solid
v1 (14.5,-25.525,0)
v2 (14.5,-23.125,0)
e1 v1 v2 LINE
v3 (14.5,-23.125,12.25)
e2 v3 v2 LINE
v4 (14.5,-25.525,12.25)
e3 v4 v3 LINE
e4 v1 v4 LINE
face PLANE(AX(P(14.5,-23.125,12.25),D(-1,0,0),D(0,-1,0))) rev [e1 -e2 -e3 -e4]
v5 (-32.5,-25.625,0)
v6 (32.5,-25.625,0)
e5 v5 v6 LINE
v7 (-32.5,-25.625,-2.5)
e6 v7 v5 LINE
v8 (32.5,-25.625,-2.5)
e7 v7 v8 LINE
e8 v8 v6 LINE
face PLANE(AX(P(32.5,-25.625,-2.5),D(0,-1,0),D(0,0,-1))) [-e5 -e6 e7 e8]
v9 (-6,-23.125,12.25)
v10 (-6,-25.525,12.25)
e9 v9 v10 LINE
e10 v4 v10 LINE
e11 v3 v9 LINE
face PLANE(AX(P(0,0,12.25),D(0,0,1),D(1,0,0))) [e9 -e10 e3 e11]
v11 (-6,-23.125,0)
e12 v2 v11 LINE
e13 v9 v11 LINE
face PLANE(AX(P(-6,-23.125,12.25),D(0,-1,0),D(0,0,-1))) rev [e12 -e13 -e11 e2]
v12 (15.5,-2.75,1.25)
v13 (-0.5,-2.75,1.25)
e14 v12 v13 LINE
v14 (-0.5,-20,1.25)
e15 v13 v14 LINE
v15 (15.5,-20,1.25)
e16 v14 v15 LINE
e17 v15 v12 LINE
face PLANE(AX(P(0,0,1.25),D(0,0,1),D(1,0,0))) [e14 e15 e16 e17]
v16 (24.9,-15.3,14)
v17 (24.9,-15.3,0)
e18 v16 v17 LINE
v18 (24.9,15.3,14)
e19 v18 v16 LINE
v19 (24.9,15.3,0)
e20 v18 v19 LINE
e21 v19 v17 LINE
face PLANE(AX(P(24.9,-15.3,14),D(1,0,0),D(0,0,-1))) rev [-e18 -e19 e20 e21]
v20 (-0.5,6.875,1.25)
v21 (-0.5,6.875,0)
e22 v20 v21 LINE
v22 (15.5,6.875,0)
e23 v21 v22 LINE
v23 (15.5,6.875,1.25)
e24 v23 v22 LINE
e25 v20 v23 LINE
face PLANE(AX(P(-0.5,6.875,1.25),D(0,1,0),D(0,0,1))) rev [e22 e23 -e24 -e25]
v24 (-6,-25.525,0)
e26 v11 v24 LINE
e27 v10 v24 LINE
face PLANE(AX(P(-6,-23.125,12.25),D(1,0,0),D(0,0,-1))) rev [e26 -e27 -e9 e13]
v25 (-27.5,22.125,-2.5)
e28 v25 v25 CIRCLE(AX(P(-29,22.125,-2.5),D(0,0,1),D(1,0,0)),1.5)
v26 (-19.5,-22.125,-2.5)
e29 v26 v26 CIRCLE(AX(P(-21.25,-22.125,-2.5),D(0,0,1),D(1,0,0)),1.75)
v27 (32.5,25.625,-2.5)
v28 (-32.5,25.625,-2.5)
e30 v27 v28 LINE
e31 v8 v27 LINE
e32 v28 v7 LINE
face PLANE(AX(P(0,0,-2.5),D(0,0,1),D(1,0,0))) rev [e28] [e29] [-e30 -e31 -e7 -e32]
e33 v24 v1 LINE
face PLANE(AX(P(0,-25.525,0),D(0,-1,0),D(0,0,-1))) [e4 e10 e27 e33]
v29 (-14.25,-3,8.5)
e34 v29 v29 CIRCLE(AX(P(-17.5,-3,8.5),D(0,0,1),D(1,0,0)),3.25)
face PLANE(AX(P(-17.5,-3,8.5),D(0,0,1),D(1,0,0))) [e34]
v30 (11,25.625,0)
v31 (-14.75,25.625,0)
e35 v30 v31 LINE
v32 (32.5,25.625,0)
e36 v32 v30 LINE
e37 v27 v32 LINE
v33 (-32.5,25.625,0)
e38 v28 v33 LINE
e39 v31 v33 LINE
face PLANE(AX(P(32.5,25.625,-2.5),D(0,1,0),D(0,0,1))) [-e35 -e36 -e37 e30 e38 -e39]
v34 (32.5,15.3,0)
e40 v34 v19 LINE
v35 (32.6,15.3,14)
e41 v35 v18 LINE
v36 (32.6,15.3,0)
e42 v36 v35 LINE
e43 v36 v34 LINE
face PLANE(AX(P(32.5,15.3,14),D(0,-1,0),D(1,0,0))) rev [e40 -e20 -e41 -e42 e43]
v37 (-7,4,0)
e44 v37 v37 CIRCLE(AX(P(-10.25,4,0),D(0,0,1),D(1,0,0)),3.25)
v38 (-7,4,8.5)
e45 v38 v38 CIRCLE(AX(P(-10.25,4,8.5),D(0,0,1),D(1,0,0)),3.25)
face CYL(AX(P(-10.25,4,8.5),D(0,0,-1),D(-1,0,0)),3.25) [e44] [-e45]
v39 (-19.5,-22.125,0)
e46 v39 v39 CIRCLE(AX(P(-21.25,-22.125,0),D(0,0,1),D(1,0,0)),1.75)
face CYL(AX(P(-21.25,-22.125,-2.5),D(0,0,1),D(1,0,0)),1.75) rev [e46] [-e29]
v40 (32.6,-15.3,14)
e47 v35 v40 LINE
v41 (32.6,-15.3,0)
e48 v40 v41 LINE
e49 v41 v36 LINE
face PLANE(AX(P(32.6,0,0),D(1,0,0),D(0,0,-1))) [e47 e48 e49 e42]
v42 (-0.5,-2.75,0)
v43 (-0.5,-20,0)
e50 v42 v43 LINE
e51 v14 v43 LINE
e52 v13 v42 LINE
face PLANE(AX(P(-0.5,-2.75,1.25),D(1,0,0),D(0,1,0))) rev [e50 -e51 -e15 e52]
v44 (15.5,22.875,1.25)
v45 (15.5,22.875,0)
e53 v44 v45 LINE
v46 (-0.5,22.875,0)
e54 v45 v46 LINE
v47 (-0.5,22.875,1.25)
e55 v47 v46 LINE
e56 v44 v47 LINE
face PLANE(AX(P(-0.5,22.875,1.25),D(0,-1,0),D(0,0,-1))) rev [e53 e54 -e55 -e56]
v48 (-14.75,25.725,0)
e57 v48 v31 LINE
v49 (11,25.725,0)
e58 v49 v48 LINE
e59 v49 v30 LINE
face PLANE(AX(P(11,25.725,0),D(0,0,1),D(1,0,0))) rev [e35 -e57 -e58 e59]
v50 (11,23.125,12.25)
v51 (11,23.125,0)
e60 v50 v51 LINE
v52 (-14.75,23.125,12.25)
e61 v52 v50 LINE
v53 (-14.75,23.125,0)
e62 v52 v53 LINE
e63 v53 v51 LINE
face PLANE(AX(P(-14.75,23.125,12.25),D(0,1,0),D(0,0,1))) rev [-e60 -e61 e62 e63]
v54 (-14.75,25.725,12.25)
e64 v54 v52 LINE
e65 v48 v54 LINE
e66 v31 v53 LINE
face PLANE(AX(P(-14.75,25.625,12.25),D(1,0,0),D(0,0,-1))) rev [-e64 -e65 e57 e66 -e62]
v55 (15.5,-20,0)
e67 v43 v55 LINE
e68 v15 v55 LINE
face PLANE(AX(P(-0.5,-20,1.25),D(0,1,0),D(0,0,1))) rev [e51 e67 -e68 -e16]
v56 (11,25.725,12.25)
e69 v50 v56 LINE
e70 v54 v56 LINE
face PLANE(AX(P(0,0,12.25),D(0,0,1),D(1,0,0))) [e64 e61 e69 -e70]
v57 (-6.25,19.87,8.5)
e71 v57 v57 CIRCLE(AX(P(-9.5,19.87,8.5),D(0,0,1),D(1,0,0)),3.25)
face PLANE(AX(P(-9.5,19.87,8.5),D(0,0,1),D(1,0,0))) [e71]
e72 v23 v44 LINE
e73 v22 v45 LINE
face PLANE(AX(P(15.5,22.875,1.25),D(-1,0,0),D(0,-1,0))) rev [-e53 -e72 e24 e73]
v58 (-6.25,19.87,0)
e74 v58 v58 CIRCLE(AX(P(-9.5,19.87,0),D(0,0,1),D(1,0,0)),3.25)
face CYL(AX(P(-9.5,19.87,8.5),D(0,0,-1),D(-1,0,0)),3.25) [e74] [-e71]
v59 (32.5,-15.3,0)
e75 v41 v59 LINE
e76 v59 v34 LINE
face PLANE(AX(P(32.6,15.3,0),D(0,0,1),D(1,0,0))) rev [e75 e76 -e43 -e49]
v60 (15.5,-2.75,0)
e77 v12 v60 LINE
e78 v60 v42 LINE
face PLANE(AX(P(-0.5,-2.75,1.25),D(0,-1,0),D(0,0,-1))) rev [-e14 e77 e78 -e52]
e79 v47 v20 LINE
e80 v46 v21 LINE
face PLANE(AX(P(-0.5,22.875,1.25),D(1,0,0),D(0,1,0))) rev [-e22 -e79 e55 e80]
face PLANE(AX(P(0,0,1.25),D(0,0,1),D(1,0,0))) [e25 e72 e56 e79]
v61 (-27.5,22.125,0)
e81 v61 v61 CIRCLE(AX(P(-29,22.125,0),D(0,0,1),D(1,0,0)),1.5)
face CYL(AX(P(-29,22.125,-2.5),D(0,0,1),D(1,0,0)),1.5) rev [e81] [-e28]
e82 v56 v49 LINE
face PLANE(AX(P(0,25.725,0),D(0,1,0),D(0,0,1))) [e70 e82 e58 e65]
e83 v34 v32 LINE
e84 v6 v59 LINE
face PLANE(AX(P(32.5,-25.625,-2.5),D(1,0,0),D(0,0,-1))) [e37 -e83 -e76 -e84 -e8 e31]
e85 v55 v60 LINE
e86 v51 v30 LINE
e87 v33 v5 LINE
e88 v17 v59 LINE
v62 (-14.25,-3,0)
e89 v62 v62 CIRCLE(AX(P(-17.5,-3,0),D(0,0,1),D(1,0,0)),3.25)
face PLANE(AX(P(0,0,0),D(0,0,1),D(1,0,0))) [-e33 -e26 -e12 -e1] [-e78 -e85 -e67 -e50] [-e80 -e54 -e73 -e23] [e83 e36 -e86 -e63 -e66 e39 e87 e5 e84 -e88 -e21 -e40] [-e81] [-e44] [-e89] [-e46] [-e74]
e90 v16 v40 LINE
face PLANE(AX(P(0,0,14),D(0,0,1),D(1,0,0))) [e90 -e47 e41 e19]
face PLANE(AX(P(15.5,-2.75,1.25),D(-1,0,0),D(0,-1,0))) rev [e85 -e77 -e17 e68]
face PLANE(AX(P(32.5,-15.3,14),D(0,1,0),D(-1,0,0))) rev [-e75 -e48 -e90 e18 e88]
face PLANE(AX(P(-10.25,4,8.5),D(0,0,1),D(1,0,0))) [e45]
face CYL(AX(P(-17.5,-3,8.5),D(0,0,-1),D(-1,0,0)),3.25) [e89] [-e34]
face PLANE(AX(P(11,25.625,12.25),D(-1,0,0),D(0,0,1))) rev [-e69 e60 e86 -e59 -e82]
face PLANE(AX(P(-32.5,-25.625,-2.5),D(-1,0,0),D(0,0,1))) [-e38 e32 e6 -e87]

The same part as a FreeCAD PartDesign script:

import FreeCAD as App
import Part
import Sketcher
from FreeCAD import Vector

doc = App.newDocument("Part")
body = doc.addObject("PartDesign::Body", "Body")

sketch1 = body.newObject("Sketcher::SketchObject", "Sketch")
sketch1.AttachmentSupport = (doc.getObject("XY_Plane"), [""])
sketch1.MapMode = "FlatFace"
sketch1.addGeometry(Part.Circle(Vector(-17.5, -3, 0), Vector(0, 0, 1), 3.25), False)
sketch1.addConstraint([
    Sketcher.Constraint("Diameter", 0, 6.5),
    Sketcher.Constraint("DistanceY", 0, 3, -1, 1, 3.0),
    Sketcher.Constraint("DistanceX", 0, 3, -1, 1, 17.5),
])
pad1 = body.newObject("PartDesign::Pad", "Pad")
pad1.Profile = sketch1
pad1.Length = 8.5

sketch2 = body.newObject("Sketcher::SketchObject", "Sketch001")
sketch2.AttachmentSupport = (doc.getObject("XY_Plane"), [""])
sketch2.MapMode = "FlatFace"
sketch2.addGeometry([
    Part.LineSegment(Vector(-32.5, 25.625, 0), Vector(-32.5, -25.625, 0)),
    Part.LineSegment(Vector(-32.5, -25.625, 0), Vector(32.5, -25.625, 0)),
    Part.LineSegment(Vector(32.5, -25.625, 0), Vector(32.5, 25.625, 0)),
    Part.LineSegment(Vector(32.5, 25.625, 0), Vector(-32.5, 25.625, 0)),
], False)
sketch2.addConstraint([
    Sketcher.Constraint("Coincident", 0, 2, 1, 1),
    Sketcher.Constraint("Coincident", 1, 2, 2, 1),
    Sketcher.Constraint("Coincident", 2, 2, 3, 1),
    Sketcher.Constraint("Coincident", 3, 2, 0, 1),
    Sketcher.Constraint("Vertical", 0),
    Sketcher.Constraint("Horizontal", 1),
    Sketcher.Constraint("Vertical", 2),
    Sketcher.Constraint("Horizontal", 3),
    Sketcher.Constraint("Symmetric", 0, 2, 2, 2, -1, 1),
    Sketcher.Constraint("DistanceX", 1, 1, 1, 2, 65.0),
    Sketcher.Constraint("DistanceY", 0, 2, 0, 1, 51.25),
])
pad2 = body.newObject("PartDesign::Pad", "Pad001")
pad2.Profile = sketch2
pad2.Length = 2.5
pad2.Reversed = True

sketch3 = body.newObject("Sketcher::SketchObject", "Sketch002")
sketch3.AttachmentSupport = (doc.getObject("XY_Plane"), [""])
sketch3.MapMode = "FlatFace"
sketch3.addGeometry([
    Part.LineSegment(Vector(24.9, 15.3, 0), Vector(24.9, -15.3, 0)),
    Part.LineSegment(Vector(24.9, -15.3, 0), Vector(32.5, -15.3, 0)),
    Part.LineSegment(Vector(32.5, -15.3, 0), Vector(32.5, 15.3, 0)),
    Part.LineSegment(Vector(32.5, 15.3, 0), Vector(24.9, 15.3, 0)),
], False)
sketch3.addConstraint([
    Sketcher.Constraint("Coincident", 0, 2, 1, 1),
    Sketcher.Constraint("Coincident", 1, 2, 2, 1),
    Sketcher.Constraint("Coincident", 2, 2, 3, 1),
    Sketcher.Constraint("Coincident", 3, 2, 0, 1),
    Sketcher.Constraint("Vertical", 0),
    Sketcher.Constraint("Horizontal", 1),
    Sketcher.Constraint("Vertical", 2),
    Sketcher.Constraint("Horizontal", 3),
    Sketcher.Constraint("DistanceX", 1, 1, 1, 2, 7.6),
    Sketcher.Constraint("DistanceY", 0, 2, 0, 1, 30.6),
    Sketcher.Constraint("DistanceX", -1, 1, 0, 2, 24.9),
    Sketcher.Constraint("DistanceY", 0, 2, -1, 1, 15.3),
])
pad3 = body.newObject("PartDesign::Pad", "Pad002")
pad3.Profile = sketch3
pad3.Length = 14

sketch4 = body.newObject("Sketcher::SketchObject", "Sketch003")
sketch4.AttachmentSupport = (doc.getObject("XY_Plane"), [""])
sketch4.MapMode = "FlatFace"
sketch4.addGeometry(Part.Circle(Vector(-10.25, 4, 0), Vector(0, 0, 1), 3.25), False)
sketch4.addConstraint([
    Sketcher.Constraint("Diameter", 0, 6.5),
    Sketcher.Constraint("DistanceY", -1, 1, 0, 3, 4.0),
    Sketcher.Constraint("DistanceX", 0, 3, -1, 1, 10.25),
])
pad4 = body.newObject("PartDesign::Pad", "Pad003")
pad4.Profile = sketch4
pad4.Length = 8.5

sketch5 = body.newObject("Sketcher::SketchObject", "Sketch004")
sketch5.AttachmentSupport = (doc.getObject("XY_Plane"), [""])
sketch5.MapMode = "FlatFace"
sketch5.addGeometry([
    Part.LineSegment(Vector(-14.75, 25.625, 0), Vector(-14.75, 23.125, 0)),
    Part.LineSegment(Vector(-14.75, 23.125, 0), Vector(11, 23.125, 0)),
    Part.LineSegment(Vector(11, 23.125, 0), Vector(11, 25.625, 0)),
    Part.LineSegment(Vector(11, 25.625, 0), Vector(-14.75, 25.625, 0)),
], False)
sketch5.addConstraint([
    Sketcher.Constraint("Coincident", 0, 2, 1, 1),
    Sketcher.Constraint("Coincident", 1, 2, 2, 1),
    Sketcher.Constraint("Coincident", 2, 2, 3, 1),
    Sketcher.Constraint("Coincident", 3, 2, 0, 1),
    Sketcher.Constraint("Vertical", 0),
    Sketcher.Constraint("Horizontal", 1),
    Sketcher.Constraint("Vertical", 2),
    Sketcher.Constraint("Horizontal", 3),
    Sketcher.Constraint("DistanceY", 0, 2, 0, 1, 2.5),
    Sketcher.Constraint("DistanceX", -1, 1, 1, 2, 11.0),
    Sketcher.Constraint("DistanceX", 1, 1, 1, 2, 25.75),
    Sketcher.Constraint("DistanceY", -1, 1, 0, 2, 23.125),
])
pad5 = body.newObject("PartDesign::Pad", "Pad004")
pad5.Profile = sketch5
pad5.Length = 12.25

sketch6 = body.newObject("Sketcher::SketchObject", "Sketch005")
sketch6.AttachmentSupport = (doc.getObject("XY_Plane"), [""])
sketch6.MapMode = "FlatFace"
sketch6.addGeometry(Part.Circle(Vector(-9.5, 19.87, 0), Vector(0, 0, 1), 3.25), False)
sketch6.addConstraint([
    Sketcher.Constraint("Diameter", 0, 6.5),
    Sketcher.Constraint("DistanceX", 0, 3, -1, 1, 9.5),
    Sketcher.Constraint("DistanceY", -1, 1, 0, 3, 19.87),
])
pad6 = body.newObject("PartDesign::Pad", "Pad005")
pad6.Profile = sketch6
pad6.Length = 8.5

sketch7 = body.newObject("Sketcher::SketchObject", "Sketch006")
sketch7.AttachmentSupport = (doc.getObject("XY_Plane"), [""])
sketch7.MapMode = "FlatFace"
sketch7.addGeometry([
    Part.LineSegment(Vector(-6, -23.125, 0), Vector(-6, -25.625, 0)),
    Part.LineSegment(Vector(-6, -25.625, 0), Vector(14.5, -25.625, 0)),
    Part.LineSegment(Vector(14.5, -25.625, 0), Vector(14.5, -23.125, 0)),
    Part.LineSegment(Vector(14.5, -23.125, 0), Vector(-6, -23.125, 0)),
], False)
sketch7.addConstraint([
    Sketcher.Constraint("Coincident", 0, 2, 1, 1),
    Sketcher.Constraint("Coincident", 1, 2, 2, 1),
    Sketcher.Constraint("Coincident", 2, 2, 3, 1),
    Sketcher.Constraint("Coincident", 3, 2, 0, 1),
    Sketcher.Constraint("Vertical", 0),
    Sketcher.Constraint("Horizontal", 1),
    Sketcher.Constraint("Vertical", 2),
    Sketcher.Constraint("Horizontal", 3),
    Sketcher.Constraint("DistanceX", 1, 1, 1, 2, 20.5),
    Sketcher.Constraint("DistanceY", 0, 2, 0, 1, 2.5),
    Sketcher.Constraint("DistanceX", 0, 2, -1, 1, 6.0),
    Sketcher.Constraint("DistanceY", 0, 2, -1, 1, 25.625),
])
pad7 = body.newObject("PartDesign::Pad", "Pad006")
pad7.Profile = sketch7
pad7.Length = 12.25

sketch8 = body.newObject("Sketcher::SketchObject", "Sketch007")
sketch8.AttachmentSupport = (doc.getObject("XZ_Plane"), [""])
sketch8.MapMode = "FlatFace"
sketch8.AttachmentOffset = App.Placement(Vector(0, 0, 25.625), App.Rotation())
sketch8.addGeometry([
    Part.LineSegment(Vector(-6, 12.25, 0), Vector(-6, 0, 0)),
    Part.LineSegment(Vector(-6, 0, 0), Vector(14.5, 0, 0)),
    Part.LineSegment(Vector(14.5, 0, 0), Vector(14.5, 12.25, 0)),
    Part.LineSegment(Vector(14.5, 12.25, 0), Vector(-6, 12.25, 0)),
], False)
sketch8.addConstraint([
    Sketcher.Constraint("Coincident", 0, 2, 1, 1),
    Sketcher.Constraint("Coincident", 1, 2, 2, 1),
    Sketcher.Constraint("Coincident", 2, 2, 3, 1),
    Sketcher.Constraint("Coincident", 3, 2, 0, 1),
    Sketcher.Constraint("Vertical", 0),
    Sketcher.Constraint("Horizontal", 1),
    Sketcher.Constraint("Vertical", 2),
    Sketcher.Constraint("Horizontal", 3),
    Sketcher.Constraint("PointOnObject", 0, 2, -1),
    Sketcher.Constraint("DistanceX", 1, 1, 1, 2, 20.5),
    Sketcher.Constraint("DistanceX", 0, 2, -1, 1, 6.0),
    Sketcher.Constraint("DistanceY", 0, 2, 0, 1, 12.25),
])
pocket1 = body.newObject("PartDesign::Pocket", "Pocket")
pocket1.Profile = sketch8
pocket1.Length = 0.1

sketch9 = body.newObject("Sketcher::SketchObject", "Sketch008")
sketch9.AttachmentSupport = (doc.getObject("XZ_Plane"), [""])
sketch9.MapMode = "FlatFace"
sketch9.AttachmentOffset = App.Placement(Vector(0, 0, -25.625), App.Rotation())
sketch9.addGeometry([
    Part.LineSegment(Vector(-14.75, 0, 0), Vector(-14.75, 12.25, 0)),
    Part.LineSegment(Vector(-14.75, 12.25, 0), Vector(11, 12.25, 0)),
    Part.LineSegment(Vector(11, 12.25, 0), Vector(11, 0, 0)),
    Part.LineSegment(Vector(11, 0, 0), Vector(-14.75, 0, 0)),
], False)
sketch9.addConstraint([
    Sketcher.Constraint("Coincident", 0, 2, 1, 1),
    Sketcher.Constraint("Coincident", 1, 2, 2, 1),
    Sketcher.Constraint("Coincident", 2, 2, 3, 1),
    Sketcher.Constraint("Coincident", 3, 2, 0, 1),
    Sketcher.Constraint("Vertical", 0),
    Sketcher.Constraint("Horizontal", 1),
    Sketcher.Constraint("Vertical", 2),
    Sketcher.Constraint("Horizontal", 3),
    Sketcher.Constraint("PointOnObject", 2, 2, -1),
    Sketcher.Constraint("DistanceX", -1, 1, 1, 2, 11.0),
    Sketcher.Constraint("DistanceX", 1, 1, 1, 2, 25.75),
    Sketcher.Constraint("DistanceY", 0, 1, 0, 2, 12.25),
])
pad8 = body.newObject("PartDesign::Pad", "Pad007")
pad8.Profile = sketch9
pad8.Length = 0.1
pad8.Reversed = True

sketch10 = body.newObject("Sketcher::SketchObject", "Sketch009")
sketch10.AttachmentSupport = (doc.getObject("YZ_Plane"), [""])
sketch10.MapMode = "FlatFace"
sketch10.AttachmentOffset = App.Placement(Vector(0, 0, 32.5), App.Rotation())
sketch10.addGeometry([
    Part.LineSegment(Vector(15.3, 14, 0), Vector(-15.3, 14, 0)),
    Part.LineSegment(Vector(-15.3, 14, 0), Vector(-15.3, 0, 0)),
    Part.LineSegment(Vector(-15.3, 0, 0), Vector(15.3, 0, 0)),
    Part.LineSegment(Vector(15.3, 0, 0), Vector(15.3, 14, 0)),
], False)
sketch10.addConstraint([
    Sketcher.Constraint("Coincident", 0, 2, 1, 1),
    Sketcher.Constraint("Coincident", 1, 2, 2, 1),
    Sketcher.Constraint("Coincident", 2, 2, 3, 1),
    Sketcher.Constraint("Coincident", 3, 2, 0, 1),
    Sketcher.Constraint("Horizontal", 0),
    Sketcher.Constraint("Vertical", 1),
    Sketcher.Constraint("Horizontal", 2),
    Sketcher.Constraint("Vertical", 3),
    Sketcher.Constraint("Symmetric", 1, 2, 2, 2, -1, 1),
    Sketcher.Constraint("DistanceY", 1, 2, 1, 1, 14.0),
    Sketcher.Constraint("DistanceX", 0, 2, 0, 1, 30.6),
])
pad9 = body.newObject("PartDesign::Pad", "Pad008")
pad9.Profile = sketch10
pad9.Length = 0.1

sketch11 = body.newObject("Sketcher::SketchObject", "Sketch010")
sketch11.AttachmentSupport = (doc.getObject("XY_Plane"), [""])
sketch11.MapMode = "FlatFace"
sketch11.addGeometry(Part.Circle(Vector(-29, 22.125, 0), Vector(0, 0, 1), 1.5), False)
sketch11.addConstraint([
    Sketcher.Constraint("Diameter", 0, 3.0),
    Sketcher.Constraint("DistanceX", 0, 3, -1, 1, 29.0),
    Sketcher.Constraint("DistanceY", -1, 1, 0, 3, 22.125),
])
pocket2 = body.newObject("PartDesign::Pocket", "Pocket001")
pocket2.Profile = sketch11
pocket2.Type = "ThroughAll"

sketch12 = body.newObject("Sketcher::SketchObject", "Sketch011")
sketch12.AttachmentSupport = (doc.getObject("XY_Plane"), [""])
sketch12.MapMode = "FlatFace"
sketch12.addGeometry(Part.Circle(Vector(-21.25, -22.125, 0), Vector(0, 0, 1), 1.75), False)
sketch12.addConstraint([
    Sketcher.Constraint("Diameter", 0, 3.5),
    Sketcher.Constraint("DistanceX", 0, 3, -1, 1, 21.25),
    Sketcher.Constraint("DistanceY", 0, 3, -1, 1, 22.125),
])
pocket3 = body.newObject("PartDesign::Pocket", "Pocket002")
pocket3.Profile = sketch12
pocket3.Type = "ThroughAll"

sketch13 = body.newObject("Sketcher::SketchObject", "Sketch012")
sketch13.AttachmentSupport = (doc.getObject("XY_Plane"), [""])
sketch13.MapMode = "FlatFace"
sketch13.addGeometry([
    Part.LineSegment(Vector(-0.5, 22.875, 0), Vector(-0.5, 6.875, 0)),
    Part.LineSegment(Vector(-0.5, 6.875, 0), Vector(15.5, 6.875, 0)),
    Part.LineSegment(Vector(15.5, 6.875, 0), Vector(15.5, 22.875, 0)),
    Part.LineSegment(Vector(15.5, 22.875, 0), Vector(-0.5, 22.875, 0)),
], False)
sketch13.addConstraint([
    Sketcher.Constraint("Coincident", 0, 2, 1, 1),
    Sketcher.Constraint("Coincident", 1, 2, 2, 1),
    Sketcher.Constraint("Coincident", 2, 2, 3, 1),
    Sketcher.Constraint("Coincident", 3, 2, 0, 1),
    Sketcher.Constraint("Vertical", 0),
    Sketcher.Constraint("Horizontal", 1),
    Sketcher.Constraint("Vertical", 2),
    Sketcher.Constraint("Horizontal", 3),
    Sketcher.Constraint("Equal", 3, 0),
    Sketcher.Constraint("DistanceX", 1, 1, 1, 2, 16.0),
    Sketcher.Constraint("DistanceX", 0, 2, -1, 1, 0.5),
    Sketcher.Constraint("DistanceY", -1, 1, 0, 2, 6.875),
])
pad10 = body.newObject("PartDesign::Pad", "Pad009")
pad10.Profile = sketch13
pad10.Length = 1.25

sketch14 = body.newObject("Sketcher::SketchObject", "Sketch013")
sketch14.AttachmentSupport = (doc.getObject("XY_Plane"), [""])
sketch14.MapMode = "FlatFace"
sketch14.addGeometry([
    Part.LineSegment(Vector(-0.5, -2.75, 0), Vector(-0.5, -20, 0)),
    Part.LineSegment(Vector(-0.5, -20, 0), Vector(15.5, -20, 0)),
    Part.LineSegment(Vector(15.5, -20, 0), Vector(15.5, -2.75, 0)),
    Part.LineSegment(Vector(15.5, -2.75, 0), Vector(-0.5, -2.75, 0)),
], False)
sketch14.addConstraint([
    Sketcher.Constraint("Coincident", 0, 2, 1, 1),
    Sketcher.Constraint("Coincident", 1, 2, 2, 1),
    Sketcher.Constraint("Coincident", 2, 2, 3, 1),
    Sketcher.Constraint("Coincident", 3, 2, 0, 1),
    Sketcher.Constraint("Vertical", 0),
    Sketcher.Constraint("Horizontal", 1),
    Sketcher.Constraint("Vertical", 2),
    Sketcher.Constraint("Horizontal", 3),
    Sketcher.Constraint("DistanceX", 1, 1, 1, 2, 16.0),
    Sketcher.Constraint("DistanceY", 0, 2, -1, 1, 20.0),
    Sketcher.Constraint("DistanceY", 0, 2, 0, 1, 17.25),
    Sketcher.Constraint("DistanceX", 0, 2, -1, 1, 0.5),
])
pad11 = body.newObject("PartDesign::Pad", "Pad010")
pad11.Profile = sketch14
pad11.Length = 1.25

doc.recompute()
